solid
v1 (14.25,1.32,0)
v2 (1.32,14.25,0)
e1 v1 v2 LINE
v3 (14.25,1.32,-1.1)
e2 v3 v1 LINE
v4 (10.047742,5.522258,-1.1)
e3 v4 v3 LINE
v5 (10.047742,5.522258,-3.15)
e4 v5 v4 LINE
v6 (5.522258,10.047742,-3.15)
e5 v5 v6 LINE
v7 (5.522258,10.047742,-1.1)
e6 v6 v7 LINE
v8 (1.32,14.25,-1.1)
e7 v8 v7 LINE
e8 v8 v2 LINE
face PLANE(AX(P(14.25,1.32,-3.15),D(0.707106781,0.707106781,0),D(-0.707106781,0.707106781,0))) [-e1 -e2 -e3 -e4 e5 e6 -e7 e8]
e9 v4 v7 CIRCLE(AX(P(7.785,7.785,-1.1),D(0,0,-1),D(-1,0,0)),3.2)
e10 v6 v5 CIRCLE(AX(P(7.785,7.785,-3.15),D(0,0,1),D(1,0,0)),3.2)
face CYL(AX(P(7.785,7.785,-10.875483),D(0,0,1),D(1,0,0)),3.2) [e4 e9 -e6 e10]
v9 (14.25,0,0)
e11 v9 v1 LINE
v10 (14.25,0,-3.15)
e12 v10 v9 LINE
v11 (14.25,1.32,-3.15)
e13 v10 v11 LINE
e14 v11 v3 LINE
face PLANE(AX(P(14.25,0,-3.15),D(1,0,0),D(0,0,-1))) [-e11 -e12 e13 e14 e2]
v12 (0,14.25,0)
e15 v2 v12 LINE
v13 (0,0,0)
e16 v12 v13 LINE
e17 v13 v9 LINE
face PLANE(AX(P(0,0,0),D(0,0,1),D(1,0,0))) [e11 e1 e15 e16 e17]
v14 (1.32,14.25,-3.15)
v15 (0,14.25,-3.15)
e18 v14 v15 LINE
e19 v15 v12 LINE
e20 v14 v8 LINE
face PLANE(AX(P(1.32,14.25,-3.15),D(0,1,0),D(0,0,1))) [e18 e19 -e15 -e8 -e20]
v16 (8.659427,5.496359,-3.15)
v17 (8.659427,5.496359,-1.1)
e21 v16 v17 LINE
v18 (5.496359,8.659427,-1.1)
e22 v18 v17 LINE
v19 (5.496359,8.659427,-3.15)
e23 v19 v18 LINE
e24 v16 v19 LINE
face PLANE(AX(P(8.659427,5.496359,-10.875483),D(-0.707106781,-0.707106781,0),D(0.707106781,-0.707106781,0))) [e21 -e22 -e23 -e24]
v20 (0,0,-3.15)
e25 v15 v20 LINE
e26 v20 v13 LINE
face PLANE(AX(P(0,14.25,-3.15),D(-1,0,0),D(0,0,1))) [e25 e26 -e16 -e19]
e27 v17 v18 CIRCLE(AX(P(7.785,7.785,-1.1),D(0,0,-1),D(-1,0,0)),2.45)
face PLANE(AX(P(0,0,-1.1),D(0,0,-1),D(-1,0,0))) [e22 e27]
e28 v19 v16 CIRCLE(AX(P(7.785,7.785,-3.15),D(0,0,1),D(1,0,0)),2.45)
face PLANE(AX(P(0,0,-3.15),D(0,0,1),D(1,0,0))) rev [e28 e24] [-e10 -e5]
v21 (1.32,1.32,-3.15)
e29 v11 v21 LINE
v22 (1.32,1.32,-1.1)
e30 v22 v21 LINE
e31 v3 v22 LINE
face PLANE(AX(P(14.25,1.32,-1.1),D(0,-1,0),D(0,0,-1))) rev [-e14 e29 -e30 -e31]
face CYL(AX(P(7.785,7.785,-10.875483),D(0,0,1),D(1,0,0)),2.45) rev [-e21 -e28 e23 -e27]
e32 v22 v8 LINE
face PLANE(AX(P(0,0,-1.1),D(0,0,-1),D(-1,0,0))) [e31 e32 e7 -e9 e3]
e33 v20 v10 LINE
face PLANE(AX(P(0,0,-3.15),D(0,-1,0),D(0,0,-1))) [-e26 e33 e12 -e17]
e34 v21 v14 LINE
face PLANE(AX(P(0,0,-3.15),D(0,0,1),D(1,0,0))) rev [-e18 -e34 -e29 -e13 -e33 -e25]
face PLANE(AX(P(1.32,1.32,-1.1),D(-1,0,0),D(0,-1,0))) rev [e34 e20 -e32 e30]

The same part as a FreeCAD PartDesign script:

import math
import FreeCAD as App
import Part
import Sketcher
from FreeCAD import Vector
Q = App.Units.Quantity

doc = App.newDocument("Part")
body = doc.addObject("PartDesign::Body", "Body")

# Sketch on XY plane
sketch1 = doc.addObject("Sketcher::SketchObject", "Sketch")
body.addObject(sketch1)
sketch1.AttachmentSupport = (doc.XY_Plane, [""])
sketch1.MapMode = "FlatFace"
sketch1.addGeometry(Part.LineSegment(Vector(0, 0, 0), Vector(14.25, 0, 0)), False)
sketch1.addGeometry(Part.LineSegment(Vector(14.25, 0, 0), Vector(14.25, 1.32, 0)), False)
sketch1.addGeometry(Part.LineSegment(Vector(14.25, 1.32, 0), Vector(1.32, 14.25, 0)), False)
sketch1.addGeometry(Part.LineSegment(Vector(1.32, 14.25, 0), Vector(0, 14.25, 0)), False)
sketch1.addGeometry(Part.LineSegment(Vector(0, 14.25, 0), Vector(0, 0, 0)), False)
sketch1.addConstraint(Sketcher.Constraint("Coincident", 0, 2, 1, 1))
sketch1.addConstraint(Sketcher.Constraint("Coincident", 1, 2, 2, 1))
sketch1.addConstraint(Sketcher.Constraint("Coincident", 2, 2, 3, 1))
sketch1.addConstraint(Sketcher.Constraint("Coincident", 3, 2, 4, 1))
sketch1.addConstraint(Sketcher.Constraint("Coincident", 4, 2, 0, 1))
sketch1.addConstraint(Sketcher.Constraint("Horizontal", 0))
sketch1.addConstraint(Sketcher.Constraint("Vertical", 1))
sketch1.addConstraint(Sketcher.Constraint("Horizontal", 3))
sketch1.addConstraint(Sketcher.Constraint("Vertical", 4))
sketch1.addConstraint(Sketcher.Constraint("Coincident", 4, 2, -1, 1))
sketch1.addConstraint(Sketcher.Constraint("Equal", 3, 1))
sketch1.addConstraint(Sketcher.Constraint("Equal", 0, 4))
sketch1.addConstraint(Sketcher.Constraint("DistanceX", 0, 1, 0, 2, Q("14.25 mm")))
sketch1.addConstraint(Sketcher.Constraint("DistanceX", 3, 2, 3, 1, Q("1.32 mm")))
pad1 = doc.addObject("PartDesign::Pad", "Pad")
body.addObject(pad1)
pad1.Profile = sketch1
pad1.Length = 3.15
pad1.Reversed = True

# Sketch on XY plane
sketch2 = doc.addObject("Sketcher::SketchObject", "Sketch001")
body.addObject(sketch2)
sketch2.AttachmentSupport = (doc.XY_Plane, [""])
sketch2.MapMode = "FlatFace"
sketch2.AttachmentOffset = App.Placement(Vector(0, 0, -3.15), App.Rotation())
sketch2.addGeometry(Part.LineSegment(Vector(14.25, 1.32, 0), Vector(1.32, 1.32, 0)), False)
sketch2.addGeometry(Part.LineSegment(Vector(1.32, 1.32, 0), Vector(1.32, 14.25, 0)), False)
sketch2.addGeometry(Part.LineSegment(Vector(1.32, 14.25, 0), Vector(14.25, 1.32, 0)), False)
sketch2.addConstraint(Sketcher.Constraint("Coincident", 0, 2, 1, 1))
sketch2.addConstraint(Sketcher.Constraint("Coincident", 1, 2, 2, 1))
sketch2.addConstraint(Sketcher.Constraint("Coincident", 2, 2, 0, 1))
sketch2.addConstraint(Sketcher.Constraint("Horizontal", 0))
sketch2.addConstraint(Sketcher.Constraint("Vertical", 1))
sketch2.addConstraint(Sketcher.Constraint("Equal", 0, 1))
sketch2.addConstraint(Sketcher.Constraint("DistanceX", 0, 2, 0, 1, Q("12.93 mm")))
sketch2.addConstraint(Sketcher.Constraint("DistanceX", -1, 1, 0, 2, Q("1.32 mm")))
sketch2.addConstraint(Sketcher.Constraint("DistanceY", -1, 1, 0, 2, Q("1.32 mm")))
pocket1 = doc.addObject("PartDesign::Pocket", "Pocket")
body.addObject(pocket1)
pocket1.Profile = sketch2
pocket1.Length = 2.05
pocket1.Reversed = True

# Sketch on XY plane
sketch3 = doc.addObject("Sketcher::SketchObject", "Sketch002")
body.addObject(sketch3)
sketch3.AttachmentSupport = (doc.XY_Plane, [""])
sketch3.MapMode = "FlatFace"
sketch3.AttachmentOffset = App.Placement(Vector(0, 0, -1.1), App.Rotation())
sketch3.addGeometry(Part.LineSegment(Vector(5.522258, 10.047742, 0), Vector(10.047742, 5.522258, 0)), False)
sketch3.addGeometry(Part.ArcOfCircle(Part.Circle(Vector(7.785, 7.785, 0), Vector(0, 0, 1), 3.2), math.radians(135), math.radians(315)), False)
sketch3.addGeometry(Part.LineSegment(Vector(8.659427, 5.496359, 0), Vector(5.496359, 8.659427, 0)), False)
sketch3.addGeometry(Part.ArcOfCircle(Part.Circle(Vector(7.785, 7.785, 0), Vector(0, 0, 1), 2.45), math.radians(159.089506), math.radians(290.910494)), False)
sketch3.addConstraint(Sketcher.Constraint("Coincident", 0, 1, 1, 1))
sketch3.addConstraint(Sketcher.Constraint("Coincident", 1, 2, 0, 2))
sketch3.addConstraint(Sketcher.Constraint("Coincident", 2, 1, 3, 2))
sketch3.addConstraint(Sketcher.Constraint("Coincident", 3, 1, 2, 2))
sketch3.addConstraint(Sketcher.Constraint("Coincident", 3, 3, 1, 3))
sketch3.addConstraint(Sketcher.Constraint("Parallel", 0, 2))
sketch3.addConstraint(Sketcher.Constraint("Radius", 1, Q("3.2 mm")))
sketch3.addConstraint(Sketcher.Constraint("Angle", 0, Q("-45 deg")))
sketch3.addConstraint(Sketcher.Constraint("Radius", 3, Q("2.45 mm")))
sketch3.addConstraint(Sketcher.Constraint("DistanceX", -1, 1, 1, 3, Q("7.785 mm")))
sketch3.addConstraint(Sketcher.Constraint("DistanceY", -1, 1, 1, 3, Q("7.785 mm")))
sketch3.addConstraint(Sketcher.Constraint("DistanceY", 2, 1, 1, 2, Q("0.025899 mm")))
sketch3.addConstraint(Sketcher.Constraint("DistanceX", -1, 1, 0, 1, Q("5.522258 mm")))
pad2 = doc.addObject("PartDesign::Pad", "Pad001")
body.addObject(pad2)
pad2.Profile = sketch3
pad2.Length = 2.05
pad2.Reversed = True

doc.recompute()
